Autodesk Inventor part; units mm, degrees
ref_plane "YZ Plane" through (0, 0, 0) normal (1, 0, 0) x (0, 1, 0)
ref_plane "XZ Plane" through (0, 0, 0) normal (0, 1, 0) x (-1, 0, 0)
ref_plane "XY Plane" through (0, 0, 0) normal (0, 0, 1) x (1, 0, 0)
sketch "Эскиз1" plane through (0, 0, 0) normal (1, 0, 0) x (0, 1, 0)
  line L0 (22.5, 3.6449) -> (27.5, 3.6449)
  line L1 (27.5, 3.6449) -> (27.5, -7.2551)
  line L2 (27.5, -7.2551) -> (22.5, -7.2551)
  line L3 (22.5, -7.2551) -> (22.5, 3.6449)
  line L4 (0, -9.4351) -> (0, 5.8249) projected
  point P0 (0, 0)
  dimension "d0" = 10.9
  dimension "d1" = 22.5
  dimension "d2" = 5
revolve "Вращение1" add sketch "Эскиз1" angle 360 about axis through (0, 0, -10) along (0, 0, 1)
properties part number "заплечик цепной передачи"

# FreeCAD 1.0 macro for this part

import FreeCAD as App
import Part
import Sketcher
from FreeCAD import Vector

doc = App.newDocument("Part")
body = doc.addObject("PartDesign::Body", "Body")

# Sketch on YZ plane
sketch1 = body.newObject("Sketcher::SketchObject", "Sketch")
sketch1.AttachmentSupport = (doc.getObject("YZ_Plane"), [""])
sketch1.MapMode = "FlatFace"
sketch1.addGeometry(Part.LineSegment(Vector(28, 4, 0), Vector(22, 4, 0)), False)
sketch1.addGeometry(Part.LineSegment(Vector(22, 4, 0), Vector(22, -7, 0)), False)
sketch1.addGeometry(Part.LineSegment(Vector(22, -7, 0), Vector(28, -7, 0)), False)
sketch1.addGeometry(Part.LineSegment(Vector(28, -7, 0), Vector(28, 4, 0)), False)
sketch1.addConstraint(Sketcher.Constraint("Coincident", 0, 2, 1, 1))
sketch1.addConstraint(Sketcher.Constraint("Coincident", 1, 2, 2, 1))
sketch1.addConstraint(Sketcher.Constraint("Coincident", 2, 2, 3, 1))
sketch1.addConstraint(Sketcher.Constraint("Coincident", 3, 2, 0, 1))
sketch1.addConstraint(Sketcher.Constraint("Horizontal", 0))
sketch1.addConstraint(Sketcher.Constraint("Vertical", 1))
sketch1.addConstraint(Sketcher.Constraint("Horizontal", 2))
sketch1.addConstraint(Sketcher.Constraint("Vertical", 3))
sketch1.addConstraint(Sketcher.Constraint("DistanceX", 0, 2, 0, 1, 5.0))
sketch1.addConstraint(Sketcher.Constraint("DistanceY", 1, 2, 1, 1, 10.9))
sketch1.addConstraint(Sketcher.Constraint("DistanceX", -1, 1, 0, 2, 22.5))
sketch1.addConstraint(Sketcher.Constraint("DistanceY", -1, 1, 0, 2, 3.645))
revolution = body.newObject("PartDesign::Revolution", "Revolution")
revolution.Profile = sketch1
revolution.ReferenceAxis = (sketch1, ["V_Axis"])
revolution.Angle = 360

doc.recompute()
